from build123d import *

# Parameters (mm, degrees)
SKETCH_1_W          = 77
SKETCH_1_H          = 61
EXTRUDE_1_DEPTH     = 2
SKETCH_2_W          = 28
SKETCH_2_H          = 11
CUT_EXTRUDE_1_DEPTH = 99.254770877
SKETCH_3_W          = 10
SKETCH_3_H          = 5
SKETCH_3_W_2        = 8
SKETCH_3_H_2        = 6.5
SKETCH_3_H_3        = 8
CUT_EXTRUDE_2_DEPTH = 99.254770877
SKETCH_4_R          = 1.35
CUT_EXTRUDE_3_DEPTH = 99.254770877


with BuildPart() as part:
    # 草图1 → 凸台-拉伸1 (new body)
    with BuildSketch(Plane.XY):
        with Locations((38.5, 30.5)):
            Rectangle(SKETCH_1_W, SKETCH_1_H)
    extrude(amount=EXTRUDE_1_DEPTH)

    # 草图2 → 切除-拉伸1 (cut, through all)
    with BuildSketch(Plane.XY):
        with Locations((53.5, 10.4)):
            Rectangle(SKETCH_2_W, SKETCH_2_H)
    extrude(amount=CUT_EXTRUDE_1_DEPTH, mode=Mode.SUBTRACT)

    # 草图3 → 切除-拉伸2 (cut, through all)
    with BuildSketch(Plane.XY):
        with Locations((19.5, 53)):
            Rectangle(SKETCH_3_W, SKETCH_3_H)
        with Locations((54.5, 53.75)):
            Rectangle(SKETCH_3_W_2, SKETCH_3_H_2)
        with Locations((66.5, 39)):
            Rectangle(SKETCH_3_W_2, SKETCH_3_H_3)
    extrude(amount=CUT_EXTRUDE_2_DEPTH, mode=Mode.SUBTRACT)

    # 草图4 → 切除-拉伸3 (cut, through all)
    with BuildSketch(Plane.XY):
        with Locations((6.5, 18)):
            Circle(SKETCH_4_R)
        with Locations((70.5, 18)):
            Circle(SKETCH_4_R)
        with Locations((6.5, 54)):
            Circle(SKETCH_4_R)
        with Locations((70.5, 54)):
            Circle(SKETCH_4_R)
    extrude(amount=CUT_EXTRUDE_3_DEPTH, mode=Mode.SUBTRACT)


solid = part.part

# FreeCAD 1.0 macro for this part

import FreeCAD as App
import Part
import Sketcher


def add_polygon(sketch, points):
    """Adds a closed chain of lines whose ends are joined by coincident constraints."""
    first, n = sketch.GeometryCount, len(points)
    for a, b in zip(points, points[1:] + points[:1]):
        sketch.addGeometry(Part.LineSegment(App.Vector(*a, 0), App.Vector(*b, 0)), False)
    for i in range(n):
        sketch.addConstraint(Sketcher.Constraint("Coincident", first + i, 2, first + (i + 1) % n, 1))

doc = App.newDocument("Part")
params = doc.addObject("Spreadsheet::Sheet", "Params")
for row, (alias, value) in enumerate([
    ("sketch1_width", "77 mm"),
    ("sketch1_height", "61 mm"),
    ("pad1_length", "2 mm"),
    ("sketch2_width", "28 mm"),
    ("sketch2_height", "11 mm"),
    ("sketch3_width", "10 mm"),
    ("sketch3_width2", "8 mm"),
    ("sketch3_height", "5 mm"),
    ("sketch3_height2", "6.5 mm"),
    ("sketch4_diameter", "2.7 mm"),
], start=1):
    params.set(f"A{row}", alias)
    params.set(f"B{row}", "=" + value)
    params.setAlias(f"B{row}", alias)

body = doc.addObject("PartDesign::Body", "Body")

# Sketch on XY plane
sketch1 = body.newObject("Sketcher::SketchObject", "Sketch")
sketch1.AttachmentSupport = (doc.getObject("XY_Plane"), [""])
sketch1.MapMode = "FlatFace"
add_polygon(sketch1, [(0, 61), (0, 0), (77, 0), (77, 61)])  # lines 0-3
sketch1.addConstraint([
    Sketcher.Constraint("Vertical", 0),
    Sketcher.Constraint("Horizontal", 1),
    Sketcher.Constraint("Vertical", 2),
    Sketcher.Constraint("Horizontal", 3),
    Sketcher.Constraint("Coincident", 0, 2, -1, 1),
    Sketcher.Constraint("DistanceX", 1, 1, 1, 2, 77.0),
    Sketcher.Constraint("DistanceY", 0, 2, 0, 1, 61.0),
])
sketch1.setExpression("Constraints[9]", "Params.sketch1_width")
sketch1.setExpression("Constraints[10]", "Params.sketch1_height")
pad1 = body.newObject("PartDesign::Pad", "Pad")
pad1.Profile = sketch1
pad1.setExpression("Length", "Params.pad1_length")

# Sketch on XY plane
sketch2 = body.newObject("Sketcher::SketchObject", "Sketch001")
sketch2.AttachmentSupport = (doc.getObject("XY_Plane"), [""])
sketch2.MapMode = "FlatFace"
add_polygon(sketch2, [(40, 16), (40, 5), (68, 5), (68, 16)])  # lines 0-3
sketch2.addConstraint([
    Sketcher.Constraint("Vertical", 0),
    Sketcher.Constraint("Horizontal", 1),
    Sketcher.Constraint("Vertical", 2),
    Sketcher.Constraint("Horizontal", 3),
    Sketcher.Constraint("DistanceX", 1, 1, 1, 2, 28.0),
    Sketcher.Constraint("DistanceY", 0, 2, 0, 1, 11.0),
    Sketcher.Constraint("DistanceX", -1, 1, 0, 2, 39.5),
    Sketcher.Constraint("DistanceY", -1, 1, 0, 2, 4.9),
])
sketch2.setExpression("Constraints[8]", "Params.sketch2_width")
sketch2.setExpression("Constraints[9]", "Params.sketch2_height")
pocket1 = body.newObject("PartDesign::Pocket", "Pocket")
pocket1.Profile = sketch2
pocket1.Type = "ThroughAll"
pocket1.Reversed = True

# Sketch on XY plane
sketch3 = body.newObject("Sketcher::SketchObject", "Sketch002")
sketch3.AttachmentSupport = (doc.getObject("XY_Plane"), [""])
sketch3.MapMode = "FlatFace"
add_polygon(sketch3, [(14, 56), (14, 50), (24, 50), (24, 56)])  # lines 0-3
add_polygon(sketch3, [(50, 57), (50, 50), (58, 50), (58, 57)])  # lines 4-7
add_polygon(sketch3, [(62, 43), (62, 35), (70, 35), (70, 43)])  # lines 8-11
sketch3.addConstraint([
    Sketcher.Constraint("Vertical", 0),
    Sketcher.Constraint("Horizontal", 1),
    Sketcher.Constraint("Vertical", 2),
    Sketcher.Constraint("Horizontal", 3),
    Sketcher.Constraint("Vertical", 4),
    Sketcher.Constraint("Horizontal", 5),
    Sketcher.Constraint("Vertical", 6),
    Sketcher.Constraint("Horizontal", 7),
    Sketcher.Constraint("Vertical", 8),
    Sketcher.Constraint("Horizontal", 9),
    Sketcher.Constraint("Vertical", 10),
    Sketcher.Constraint("Horizontal", 11),
    Sketcher.Constraint("Horizontal", 1, 2, 4, 2),
    Sketcher.Constraint("Equal", 7, 9),
    Sketcher.Constraint("Equal", 11, 8),
    Sketcher.Constraint("DistanceX", 1, 1, 1, 2, 10.0),
    Sketcher.Constraint("DistanceX", 5, 1, 5, 2, 8.0),
    Sketcher.Constraint("DistanceY", 0, 2, 0, 1, 5.0),
    Sketcher.Constraint("DistanceY", 4, 2, 4, 1, 6.5),
    Sketcher.Constraint("DistanceY", -1, 1, 6, 2, 57.0),
    Sketcher.Constraint("DistanceY", -1, 1, 8, 2, 35.0),
    Sketcher.Constraint("DistanceX", 1, 2, 4, 2, 26.0),
    Sketcher.Constraint("DistanceX", 5, 2, 8, 2, 4.0),
    Sketcher.Constraint("DistanceX", -1, 1, 0, 2, 14.5),
])
sketch3.setExpression("Constraints[27]", "Params.sketch3_width")
sketch3.setExpression("Constraints[28]", "Params.sketch3_width2")
sketch3.setExpression("Constraints[29]", "Params.sketch3_height")
sketch3.setExpression("Constraints[30]", "Params.sketch3_height2")
pocket2 = body.newObject("PartDesign::Pocket", "Pocket001")
pocket2.Profile = sketch3
pocket2.Type = "ThroughAll"
pocket2.Reversed = True

# Sketch on XY plane
sketch4 = body.newObject("Sketcher::SketchObject", "Sketch003")
sketch4.AttachmentSupport = (doc.getObject("XY_Plane"), [""])
sketch4.MapMode = "FlatFace"
sketch4.addGeometry([
    Part.Circle(App.Vector(6.5, 18, 0), App.Vector(0, 0, 1), 1.4),
    Part.Circle(App.Vector(70.5, 18, 0), App.Vector(0, 0, 1), 1.4),
    Part.Circle(App.Vector(6.5, 54, 0), App.Vector(0, 0, 1), 1.4),
    Part.Circle(App.Vector(70.5, 54, 0), App.Vector(0, 0, 1), 1.4),
], False)
sketch4.addConstraint([
    Sketcher.Constraint("Equal", 0, 1),
    Sketcher.Constraint("Equal", 1, 2),
    Sketcher.Constraint("Equal", 2, 3),
    Sketcher.Constraint("Horizontal", 0, 3, 1, 3),
    Sketcher.Constraint("Horizontal", 2, 3, 3, 3),
    Sketcher.Constraint("Vertical", 0, 3, 2, 3),
    Sketcher.Constraint("Vertical", 1, 3, 3, 3),
    Sketcher.Constraint("Diameter", 0, 2.7),
    Sketcher.Constraint("DistanceY", -1, 1, 0, 3, 18.0),
    Sketcher.Constraint("DistanceY", -1, 1, 2, 3, 54.0),
    Sketcher.Constraint("DistanceX", 0, 3, 1, 3, 64.0),
    Sketcher.Constraint("DistanceX", -1, 1, 0, 3, 6.5),
])
sketch4.setExpression("Constraints[7]", "Params.sketch4_diameter")
pocket3 = body.newObject("PartDesign::Pocket", "Pocket002")
pocket3.Profile = sketch4
pocket3.Type = "ThroughAll"
pocket3.Reversed = True

doc.recompute()
